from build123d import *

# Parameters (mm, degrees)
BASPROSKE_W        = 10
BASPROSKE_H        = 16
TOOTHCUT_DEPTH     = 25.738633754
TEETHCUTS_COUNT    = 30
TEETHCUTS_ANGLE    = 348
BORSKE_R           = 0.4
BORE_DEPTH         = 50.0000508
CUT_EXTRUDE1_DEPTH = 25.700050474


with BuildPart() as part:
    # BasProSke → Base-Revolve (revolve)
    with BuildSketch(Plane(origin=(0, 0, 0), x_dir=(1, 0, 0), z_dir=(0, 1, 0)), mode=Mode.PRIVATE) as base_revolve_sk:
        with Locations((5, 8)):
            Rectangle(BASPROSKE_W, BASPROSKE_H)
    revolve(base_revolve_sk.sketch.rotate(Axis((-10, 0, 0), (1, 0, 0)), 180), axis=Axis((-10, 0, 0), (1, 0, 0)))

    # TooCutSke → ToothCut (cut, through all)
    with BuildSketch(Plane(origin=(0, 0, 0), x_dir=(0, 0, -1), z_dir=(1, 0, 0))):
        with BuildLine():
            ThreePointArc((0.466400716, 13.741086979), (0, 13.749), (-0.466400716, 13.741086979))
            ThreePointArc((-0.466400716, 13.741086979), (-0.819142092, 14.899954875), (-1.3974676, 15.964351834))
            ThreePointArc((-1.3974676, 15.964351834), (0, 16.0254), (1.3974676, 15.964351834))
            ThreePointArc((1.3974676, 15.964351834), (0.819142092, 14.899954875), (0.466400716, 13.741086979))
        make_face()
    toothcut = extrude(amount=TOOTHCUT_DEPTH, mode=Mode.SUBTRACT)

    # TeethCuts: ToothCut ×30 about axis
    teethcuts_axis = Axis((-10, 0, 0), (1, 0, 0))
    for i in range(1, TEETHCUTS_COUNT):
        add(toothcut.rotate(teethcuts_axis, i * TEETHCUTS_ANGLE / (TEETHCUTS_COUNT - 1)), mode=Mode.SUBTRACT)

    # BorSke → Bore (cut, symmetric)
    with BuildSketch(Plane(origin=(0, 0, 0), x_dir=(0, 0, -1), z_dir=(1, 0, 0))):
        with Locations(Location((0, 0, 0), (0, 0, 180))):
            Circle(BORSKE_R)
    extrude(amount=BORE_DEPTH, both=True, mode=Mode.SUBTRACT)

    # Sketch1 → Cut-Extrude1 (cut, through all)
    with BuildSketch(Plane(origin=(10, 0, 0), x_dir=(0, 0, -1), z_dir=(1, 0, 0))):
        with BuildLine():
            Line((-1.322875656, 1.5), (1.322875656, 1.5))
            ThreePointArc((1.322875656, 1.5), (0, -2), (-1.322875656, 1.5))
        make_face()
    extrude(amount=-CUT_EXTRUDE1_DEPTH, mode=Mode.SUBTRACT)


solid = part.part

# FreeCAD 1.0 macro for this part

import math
import FreeCAD as App
import Part
import Sketcher
from FreeCAD import Vector
Q = App.Units.Quantity

doc = App.newDocument("Part")
params = doc.addObject("Spreadsheet::Sheet", "Params")
for row, (alias, value) in enumerate([
    ("sketch1_width", "10 mm"),
    ("sketch1_height", "16 mm"),
    ("revolution_angle", "360 deg"),
    ("sketch2_radius", "6 mm"),
    ("sketch3_diameter", "0.8 mm"),
    ("pocket2_length", "100.000102 mm"),
    ("sketch4_radius", "2 mm"),
], start=1):
    params.set(f"A{row}", alias)
    params.set(f"B{row}", "=" + value)
    params.setAlias(f"B{row}", alias)

body = doc.addObject("PartDesign::Body", "Body")

# Sketch on XZ plane
sketch1 = doc.addObject("Sketcher::SketchObject", "Sketch")
body.addObject(sketch1)
sketch1.AttachmentSupport = (doc.XZ_Plane, [""])
sketch1.MapMode = "FlatFace"
sketch1.addGeometry([
    Part.LineSegment(Vector(0, -16, 0), Vector(0, 0, 0)),
    Part.LineSegment(Vector(0, 0, 0), Vector(10, 0, 0)),
    Part.LineSegment(Vector(10, 0, 0), Vector(10, -16, 0)),
    Part.LineSegment(Vector(10, -16, 0), Vector(0, -16, 0)),
], False)
sketch1.addConstraint([
    Sketcher.Constraint("Coincident", 0, 2, 1, 1),
    Sketcher.Constraint("Coincident", 1, 2, 2, 1),
    Sketcher.Constraint("Coincident", 2, 2, 3, 1),
    Sketcher.Constraint("Coincident", 3, 2, 0, 1),
    Sketcher.Constraint("Vertical", 0),
    Sketcher.Constraint("Horizontal", 1),
    Sketcher.Constraint("Vertical", 2),
    Sketcher.Constraint("Horizontal", 3),
    Sketcher.Constraint("Coincident", 0, 2, -1, 1),
    Sketcher.Constraint("DistanceX", 1, 1, 1, 2, Q("10 mm")),
    Sketcher.Constraint("DistanceY", 0, 1, 0, 2, Q("16 mm")),
])
sketch1.setExpression("Constraints[9]", "Params.sketch1_width")
sketch1.setExpression("Constraints[10]", "Params.sketch1_height")
revolution = doc.addObject("PartDesign::Revolution", "Revolution")
body.addObject(revolution)
revolution.Profile = sketch1
revolution.ReferenceAxis = (sketch1, ["H_Axis"])
revolution.setExpression("Angle", "Params.revolution_angle")

# Sketch on YZ plane
sketch2 = doc.addObject("Sketcher::SketchObject", "Sketch001")
body.addObject(sketch2)
sketch2.AttachmentSupport = (doc.YZ_Plane, [""])
sketch2.MapMode = "FlatFace"
sketch2.addGeometry([
    Part.ArcOfCircle(Part.Circle(Vector(0, 0, 0), Vector(0, 0, 1), 13.749), math.radians(-1.94399), math.radians(1.94399)),
    Part.ArcOfCircle(Part.Circle(Vector(12.582284, -6.353435, 0), Vector(0, 0, 1), 6), math.radians(55.689458), math.radians(78.864269)),
    Part.ArcOfCircle(Part.Circle(Vector(0, 0, 0), Vector(0, 0, 1), 16.0254), math.radians(-5.002735), math.radians(5.002735)),
    Part.ArcOfCircle(Part.Circle(Vector(12.582284, 6.353435, 0), Vector(0, 0, 1), 6), math.radians(-78.864269), math.radians(-55.689458)),
], False)
sketch2.addConstraint([
    Sketcher.Constraint("Coincident", 0, 1, 1, 2),
    Sketcher.Constraint("Coincident", 1, 1, 2, 1),
    Sketcher.Constraint("Coincident", 2, 2, 3, 2),
    Sketcher.Constraint("Coincident", 3, 1, 0, 2),
    Sketcher.Constraint("Coincident", 0, 3, -1, 1),
    Sketcher.Constraint("Coincident", 2, 3, -1, 1),
    Sketcher.Constraint("Equal", 1, 3),
    Sketcher.Constraint("Symmetric", 1, 3, 3, 3, -1),
    Sketcher.Constraint("Radius", 1, Q("6 mm")),
    Sketcher.Constraint("Radius", 0, Q("13.749 mm")),
    Sketcher.Constraint("Radius", 2, Q("16.0254 mm")),
    Sketcher.Constraint("DistanceY", 0, 1, -1, 1, Q("0.466401 mm")),
    Sketcher.Constraint("DistanceX", -1, 1, 1, 1, Q("15.964352 mm")),
])
sketch2.setExpression("Constraints[8]", "Params.sketch2_radius")
pocket1 = doc.addObject("PartDesign::Pocket", "Pocket")
body.addObject(pocket1)
pocket1.Profile = sketch2
pocket1.Type = "ThroughAll"
pocket1.Reversed = True
doc.recompute()

polarpattern = doc.addObject("PartDesign::PolarPattern", "PolarPattern")
body.addObject(polarpattern)
polarpattern.Originals = [pocket1]
polarpattern.Axis = (doc.X_Axis, [""])
polarpattern.Angle = 360
polarpattern.Occurrences = 30
body.Tip = polarpattern

# Sketch on YZ plane
sketch3 = doc.addObject("Sketcher::SketchObject", "Sketch002")
body.addObject(sketch3)
sketch3.AttachmentSupport = (doc.YZ_Plane, [""])
sketch3.MapMode = "FlatFace"
sketch3.addGeometry(Part.Circle(Vector(0, 0, 0), Vector(0, 0, 1), 0.4), False)
sketch3.addConstraint([
    Sketcher.Constraint("Coincident", 0, 3, -1, 1),
    Sketcher.Constraint("Diameter", 0, Q("0.8 mm")),
])
sketch3.setExpression("Constraints[1]", "Params.sketch3_diameter")
pocket2 = doc.addObject("PartDesign::Pocket", "Pocket001")
body.addObject(pocket2)
pocket2.Profile = sketch3
pocket2.setExpression("Length", "Params.pocket2_length")
pocket2.Midplane = True

# Sketch on YZ plane
sketch4 = doc.addObject("Sketcher::SketchObject", "Sketch003")
body.addObject(sketch4)
sketch4.AttachmentSupport = (doc.YZ_Plane, [""])
sketch4.MapMode = "FlatFace"
sketch4.AttachmentOffset = App.Placement(Vector(0, 0, 10), App.Rotation())
sketch4.addGeometry([
    Part.LineSegment(Vector(1.5, -1.322876, 0), Vector(1.5, 1.322876, 0)),
    Part.ArcOfCircle(Part.Circle(Vector(0, 0, 0), Vector(0, 0, 1), 2), math.radians(41.409622), math.radians(318.590378)),
], False)
sketch4.addConstraint([
    Sketcher.Constraint("Coincident", 0, 1, 1, 2),
    Sketcher.Constraint("Coincident", 1, 1, 0, 2),
    Sketcher.Constraint("Vertical", 0),
    Sketcher.Constraint("Coincident", 1, 3, -1, 1),
    Sketcher.Constraint("Radius", 1, Q("2 mm")),
    Sketcher.Constraint("DistanceX", -1, 1, 0, 1, Q("1.5 mm")),
])
sketch4.setExpression("Constraints[4]", "Params.sketch4_radius")
pocket3 = doc.addObject("PartDesign::Pocket", "Pocket002")
body.addObject(pocket3)
pocket3.Profile = sketch4
pocket3.Type = "ThroughAll"

doc.recompute()
